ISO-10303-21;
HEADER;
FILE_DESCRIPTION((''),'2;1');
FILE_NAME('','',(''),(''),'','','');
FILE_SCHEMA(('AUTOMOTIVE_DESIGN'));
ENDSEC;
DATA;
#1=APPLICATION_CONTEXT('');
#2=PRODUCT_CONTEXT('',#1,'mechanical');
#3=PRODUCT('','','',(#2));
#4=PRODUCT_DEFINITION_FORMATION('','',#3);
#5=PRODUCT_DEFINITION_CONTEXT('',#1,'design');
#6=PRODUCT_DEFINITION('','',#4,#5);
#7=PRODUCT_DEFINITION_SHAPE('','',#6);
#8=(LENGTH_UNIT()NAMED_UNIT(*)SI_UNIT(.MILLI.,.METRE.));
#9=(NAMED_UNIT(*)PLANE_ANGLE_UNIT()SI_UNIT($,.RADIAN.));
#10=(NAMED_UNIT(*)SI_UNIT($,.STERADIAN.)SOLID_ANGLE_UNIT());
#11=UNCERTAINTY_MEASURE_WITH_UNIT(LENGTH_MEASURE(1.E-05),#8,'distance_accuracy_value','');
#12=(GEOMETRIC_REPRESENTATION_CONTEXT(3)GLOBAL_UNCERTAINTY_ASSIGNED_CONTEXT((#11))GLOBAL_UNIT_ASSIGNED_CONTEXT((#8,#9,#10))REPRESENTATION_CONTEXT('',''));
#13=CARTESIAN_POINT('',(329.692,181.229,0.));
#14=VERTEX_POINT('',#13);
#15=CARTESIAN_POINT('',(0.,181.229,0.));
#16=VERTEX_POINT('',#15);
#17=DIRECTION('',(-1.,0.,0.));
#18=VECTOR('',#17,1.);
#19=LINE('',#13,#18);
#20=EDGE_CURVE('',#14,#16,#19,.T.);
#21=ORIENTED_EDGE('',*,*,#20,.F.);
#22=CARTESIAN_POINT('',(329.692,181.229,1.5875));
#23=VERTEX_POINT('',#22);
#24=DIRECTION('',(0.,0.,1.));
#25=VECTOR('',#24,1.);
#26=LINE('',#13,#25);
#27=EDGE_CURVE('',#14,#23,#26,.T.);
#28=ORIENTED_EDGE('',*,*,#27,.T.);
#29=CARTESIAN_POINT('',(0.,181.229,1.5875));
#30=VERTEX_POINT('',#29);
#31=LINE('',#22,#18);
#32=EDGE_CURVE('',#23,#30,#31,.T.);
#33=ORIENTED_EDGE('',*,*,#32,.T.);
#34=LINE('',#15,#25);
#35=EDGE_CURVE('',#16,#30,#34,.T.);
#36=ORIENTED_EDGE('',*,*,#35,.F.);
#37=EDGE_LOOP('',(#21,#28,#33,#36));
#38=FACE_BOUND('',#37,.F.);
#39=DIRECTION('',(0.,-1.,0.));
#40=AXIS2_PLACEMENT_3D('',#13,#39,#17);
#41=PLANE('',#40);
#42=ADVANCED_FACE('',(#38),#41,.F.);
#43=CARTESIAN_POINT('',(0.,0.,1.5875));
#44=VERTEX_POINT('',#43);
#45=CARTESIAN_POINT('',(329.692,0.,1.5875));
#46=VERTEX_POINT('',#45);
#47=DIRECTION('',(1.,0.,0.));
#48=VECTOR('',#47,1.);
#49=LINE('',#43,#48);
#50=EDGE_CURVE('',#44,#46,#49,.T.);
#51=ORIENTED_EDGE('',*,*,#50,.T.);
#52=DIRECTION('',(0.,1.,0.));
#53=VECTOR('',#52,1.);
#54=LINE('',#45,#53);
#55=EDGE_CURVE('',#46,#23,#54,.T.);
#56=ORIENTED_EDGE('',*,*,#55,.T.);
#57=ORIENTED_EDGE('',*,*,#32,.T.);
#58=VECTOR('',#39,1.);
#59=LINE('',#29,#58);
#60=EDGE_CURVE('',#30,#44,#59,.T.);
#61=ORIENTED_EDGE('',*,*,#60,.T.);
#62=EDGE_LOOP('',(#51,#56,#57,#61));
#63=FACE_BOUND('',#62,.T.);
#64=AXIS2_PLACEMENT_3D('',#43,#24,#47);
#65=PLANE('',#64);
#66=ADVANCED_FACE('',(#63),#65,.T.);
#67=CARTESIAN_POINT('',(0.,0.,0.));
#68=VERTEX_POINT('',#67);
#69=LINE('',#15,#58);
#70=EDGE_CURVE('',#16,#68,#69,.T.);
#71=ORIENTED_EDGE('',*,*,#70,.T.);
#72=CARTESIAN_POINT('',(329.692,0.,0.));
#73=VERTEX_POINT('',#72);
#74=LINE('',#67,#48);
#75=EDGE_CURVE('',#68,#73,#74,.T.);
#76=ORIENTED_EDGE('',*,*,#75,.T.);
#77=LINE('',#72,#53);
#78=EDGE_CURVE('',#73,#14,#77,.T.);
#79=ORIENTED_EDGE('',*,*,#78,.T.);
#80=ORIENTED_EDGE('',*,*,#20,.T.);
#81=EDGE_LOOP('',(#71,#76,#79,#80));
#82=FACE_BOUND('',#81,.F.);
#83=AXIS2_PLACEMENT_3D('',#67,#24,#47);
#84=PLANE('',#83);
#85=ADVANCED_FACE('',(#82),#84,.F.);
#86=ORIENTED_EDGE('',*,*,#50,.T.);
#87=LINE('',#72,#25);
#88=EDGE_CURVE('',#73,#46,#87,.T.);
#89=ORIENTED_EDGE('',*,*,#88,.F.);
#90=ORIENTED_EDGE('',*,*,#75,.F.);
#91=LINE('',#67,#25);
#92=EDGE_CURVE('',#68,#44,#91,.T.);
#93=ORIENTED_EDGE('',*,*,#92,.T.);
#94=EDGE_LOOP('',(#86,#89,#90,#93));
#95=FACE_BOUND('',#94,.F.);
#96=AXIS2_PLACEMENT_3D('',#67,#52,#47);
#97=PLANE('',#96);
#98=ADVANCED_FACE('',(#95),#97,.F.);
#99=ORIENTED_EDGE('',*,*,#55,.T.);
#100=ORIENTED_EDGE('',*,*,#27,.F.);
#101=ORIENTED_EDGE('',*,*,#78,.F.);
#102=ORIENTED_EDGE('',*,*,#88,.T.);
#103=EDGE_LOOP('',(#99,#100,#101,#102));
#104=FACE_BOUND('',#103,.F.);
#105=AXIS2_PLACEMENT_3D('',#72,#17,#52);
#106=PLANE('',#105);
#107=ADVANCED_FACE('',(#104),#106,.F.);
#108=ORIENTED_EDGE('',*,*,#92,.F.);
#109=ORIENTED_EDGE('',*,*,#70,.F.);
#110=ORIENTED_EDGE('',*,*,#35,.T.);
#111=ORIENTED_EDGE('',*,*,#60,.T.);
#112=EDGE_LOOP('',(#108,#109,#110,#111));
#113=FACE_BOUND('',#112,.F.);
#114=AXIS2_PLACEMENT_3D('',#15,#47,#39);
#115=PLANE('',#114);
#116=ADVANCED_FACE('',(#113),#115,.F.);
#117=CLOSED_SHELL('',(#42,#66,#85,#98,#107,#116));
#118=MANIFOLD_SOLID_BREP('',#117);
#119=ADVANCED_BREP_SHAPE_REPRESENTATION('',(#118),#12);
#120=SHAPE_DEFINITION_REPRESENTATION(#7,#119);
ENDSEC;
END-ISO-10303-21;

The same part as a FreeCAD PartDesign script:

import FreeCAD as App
import Part
import Sketcher
from FreeCAD import Vector
Q = App.Units.Quantity


def add_polygon(sketch, points):
    """Adds a closed chain of lines whose ends are joined by coincident constraints."""
    first, n = sketch.GeometryCount, len(points)
    for a, b in zip(points, points[1:] + points[:1]):
        sketch.addGeometry(Part.LineSegment(App.Vector(*a, 0), App.Vector(*b, 0)), False)
    for i in range(n):
        sketch.addConstraint(Sketcher.Constraint("Coincident", first + i, 2, first + (i + 1) % n, 1))

doc = App.newDocument("Part")
params = doc.addObject("Spreadsheet::Sheet", "Params")
for row, (alias, value) in enumerate([
    ("sketch1_width", "12.98 in"),
    ("sketch1_height", "7.135 in"),
    ("pad1_length", "0.0625 in"),
], start=1):
    params.set(f"A{row}", alias)
    params.set(f"B{row}", "=" + value)
    params.setAlias(f"B{row}", alias)

body = doc.addObject("PartDesign::Body", "Body")

sketch1 = body.newObject("Sketcher::SketchObject", "Sketch")
sketch1.AttachmentSupport = (doc.getObject("XY_Plane"), [""])
sketch1.MapMode = "FlatFace"
add_polygon(sketch1, [(0, 181), (0, 0), (330, 0), (330, 181)])
sketch1.addConstraint([
    Sketcher.Constraint("Vertical", 0),
    Sketcher.Constraint("Horizontal", 1),
    Sketcher.Constraint("Vertical", 2),
    Sketcher.Constraint("Horizontal", 3),
    Sketcher.Constraint("Coincident", 0, 2, -1, 1),
    Sketcher.Constraint("DistanceX", 1, 1, 1, 2, Q("12.98 in")),
    Sketcher.Constraint("DistanceY", 0, 2, 0, 1, Q("7.135 in")),
])
sketch1.setExpression("Constraints[9]", "Params.sketch1_width")
sketch1.setExpression("Constraints[10]", "Params.sketch1_height")
pad1 = body.newObject("PartDesign::Pad", "Pad")
pad1.Profile = sketch1
pad1.setExpression("Length", "Params.pad1_length")

doc.recompute()
